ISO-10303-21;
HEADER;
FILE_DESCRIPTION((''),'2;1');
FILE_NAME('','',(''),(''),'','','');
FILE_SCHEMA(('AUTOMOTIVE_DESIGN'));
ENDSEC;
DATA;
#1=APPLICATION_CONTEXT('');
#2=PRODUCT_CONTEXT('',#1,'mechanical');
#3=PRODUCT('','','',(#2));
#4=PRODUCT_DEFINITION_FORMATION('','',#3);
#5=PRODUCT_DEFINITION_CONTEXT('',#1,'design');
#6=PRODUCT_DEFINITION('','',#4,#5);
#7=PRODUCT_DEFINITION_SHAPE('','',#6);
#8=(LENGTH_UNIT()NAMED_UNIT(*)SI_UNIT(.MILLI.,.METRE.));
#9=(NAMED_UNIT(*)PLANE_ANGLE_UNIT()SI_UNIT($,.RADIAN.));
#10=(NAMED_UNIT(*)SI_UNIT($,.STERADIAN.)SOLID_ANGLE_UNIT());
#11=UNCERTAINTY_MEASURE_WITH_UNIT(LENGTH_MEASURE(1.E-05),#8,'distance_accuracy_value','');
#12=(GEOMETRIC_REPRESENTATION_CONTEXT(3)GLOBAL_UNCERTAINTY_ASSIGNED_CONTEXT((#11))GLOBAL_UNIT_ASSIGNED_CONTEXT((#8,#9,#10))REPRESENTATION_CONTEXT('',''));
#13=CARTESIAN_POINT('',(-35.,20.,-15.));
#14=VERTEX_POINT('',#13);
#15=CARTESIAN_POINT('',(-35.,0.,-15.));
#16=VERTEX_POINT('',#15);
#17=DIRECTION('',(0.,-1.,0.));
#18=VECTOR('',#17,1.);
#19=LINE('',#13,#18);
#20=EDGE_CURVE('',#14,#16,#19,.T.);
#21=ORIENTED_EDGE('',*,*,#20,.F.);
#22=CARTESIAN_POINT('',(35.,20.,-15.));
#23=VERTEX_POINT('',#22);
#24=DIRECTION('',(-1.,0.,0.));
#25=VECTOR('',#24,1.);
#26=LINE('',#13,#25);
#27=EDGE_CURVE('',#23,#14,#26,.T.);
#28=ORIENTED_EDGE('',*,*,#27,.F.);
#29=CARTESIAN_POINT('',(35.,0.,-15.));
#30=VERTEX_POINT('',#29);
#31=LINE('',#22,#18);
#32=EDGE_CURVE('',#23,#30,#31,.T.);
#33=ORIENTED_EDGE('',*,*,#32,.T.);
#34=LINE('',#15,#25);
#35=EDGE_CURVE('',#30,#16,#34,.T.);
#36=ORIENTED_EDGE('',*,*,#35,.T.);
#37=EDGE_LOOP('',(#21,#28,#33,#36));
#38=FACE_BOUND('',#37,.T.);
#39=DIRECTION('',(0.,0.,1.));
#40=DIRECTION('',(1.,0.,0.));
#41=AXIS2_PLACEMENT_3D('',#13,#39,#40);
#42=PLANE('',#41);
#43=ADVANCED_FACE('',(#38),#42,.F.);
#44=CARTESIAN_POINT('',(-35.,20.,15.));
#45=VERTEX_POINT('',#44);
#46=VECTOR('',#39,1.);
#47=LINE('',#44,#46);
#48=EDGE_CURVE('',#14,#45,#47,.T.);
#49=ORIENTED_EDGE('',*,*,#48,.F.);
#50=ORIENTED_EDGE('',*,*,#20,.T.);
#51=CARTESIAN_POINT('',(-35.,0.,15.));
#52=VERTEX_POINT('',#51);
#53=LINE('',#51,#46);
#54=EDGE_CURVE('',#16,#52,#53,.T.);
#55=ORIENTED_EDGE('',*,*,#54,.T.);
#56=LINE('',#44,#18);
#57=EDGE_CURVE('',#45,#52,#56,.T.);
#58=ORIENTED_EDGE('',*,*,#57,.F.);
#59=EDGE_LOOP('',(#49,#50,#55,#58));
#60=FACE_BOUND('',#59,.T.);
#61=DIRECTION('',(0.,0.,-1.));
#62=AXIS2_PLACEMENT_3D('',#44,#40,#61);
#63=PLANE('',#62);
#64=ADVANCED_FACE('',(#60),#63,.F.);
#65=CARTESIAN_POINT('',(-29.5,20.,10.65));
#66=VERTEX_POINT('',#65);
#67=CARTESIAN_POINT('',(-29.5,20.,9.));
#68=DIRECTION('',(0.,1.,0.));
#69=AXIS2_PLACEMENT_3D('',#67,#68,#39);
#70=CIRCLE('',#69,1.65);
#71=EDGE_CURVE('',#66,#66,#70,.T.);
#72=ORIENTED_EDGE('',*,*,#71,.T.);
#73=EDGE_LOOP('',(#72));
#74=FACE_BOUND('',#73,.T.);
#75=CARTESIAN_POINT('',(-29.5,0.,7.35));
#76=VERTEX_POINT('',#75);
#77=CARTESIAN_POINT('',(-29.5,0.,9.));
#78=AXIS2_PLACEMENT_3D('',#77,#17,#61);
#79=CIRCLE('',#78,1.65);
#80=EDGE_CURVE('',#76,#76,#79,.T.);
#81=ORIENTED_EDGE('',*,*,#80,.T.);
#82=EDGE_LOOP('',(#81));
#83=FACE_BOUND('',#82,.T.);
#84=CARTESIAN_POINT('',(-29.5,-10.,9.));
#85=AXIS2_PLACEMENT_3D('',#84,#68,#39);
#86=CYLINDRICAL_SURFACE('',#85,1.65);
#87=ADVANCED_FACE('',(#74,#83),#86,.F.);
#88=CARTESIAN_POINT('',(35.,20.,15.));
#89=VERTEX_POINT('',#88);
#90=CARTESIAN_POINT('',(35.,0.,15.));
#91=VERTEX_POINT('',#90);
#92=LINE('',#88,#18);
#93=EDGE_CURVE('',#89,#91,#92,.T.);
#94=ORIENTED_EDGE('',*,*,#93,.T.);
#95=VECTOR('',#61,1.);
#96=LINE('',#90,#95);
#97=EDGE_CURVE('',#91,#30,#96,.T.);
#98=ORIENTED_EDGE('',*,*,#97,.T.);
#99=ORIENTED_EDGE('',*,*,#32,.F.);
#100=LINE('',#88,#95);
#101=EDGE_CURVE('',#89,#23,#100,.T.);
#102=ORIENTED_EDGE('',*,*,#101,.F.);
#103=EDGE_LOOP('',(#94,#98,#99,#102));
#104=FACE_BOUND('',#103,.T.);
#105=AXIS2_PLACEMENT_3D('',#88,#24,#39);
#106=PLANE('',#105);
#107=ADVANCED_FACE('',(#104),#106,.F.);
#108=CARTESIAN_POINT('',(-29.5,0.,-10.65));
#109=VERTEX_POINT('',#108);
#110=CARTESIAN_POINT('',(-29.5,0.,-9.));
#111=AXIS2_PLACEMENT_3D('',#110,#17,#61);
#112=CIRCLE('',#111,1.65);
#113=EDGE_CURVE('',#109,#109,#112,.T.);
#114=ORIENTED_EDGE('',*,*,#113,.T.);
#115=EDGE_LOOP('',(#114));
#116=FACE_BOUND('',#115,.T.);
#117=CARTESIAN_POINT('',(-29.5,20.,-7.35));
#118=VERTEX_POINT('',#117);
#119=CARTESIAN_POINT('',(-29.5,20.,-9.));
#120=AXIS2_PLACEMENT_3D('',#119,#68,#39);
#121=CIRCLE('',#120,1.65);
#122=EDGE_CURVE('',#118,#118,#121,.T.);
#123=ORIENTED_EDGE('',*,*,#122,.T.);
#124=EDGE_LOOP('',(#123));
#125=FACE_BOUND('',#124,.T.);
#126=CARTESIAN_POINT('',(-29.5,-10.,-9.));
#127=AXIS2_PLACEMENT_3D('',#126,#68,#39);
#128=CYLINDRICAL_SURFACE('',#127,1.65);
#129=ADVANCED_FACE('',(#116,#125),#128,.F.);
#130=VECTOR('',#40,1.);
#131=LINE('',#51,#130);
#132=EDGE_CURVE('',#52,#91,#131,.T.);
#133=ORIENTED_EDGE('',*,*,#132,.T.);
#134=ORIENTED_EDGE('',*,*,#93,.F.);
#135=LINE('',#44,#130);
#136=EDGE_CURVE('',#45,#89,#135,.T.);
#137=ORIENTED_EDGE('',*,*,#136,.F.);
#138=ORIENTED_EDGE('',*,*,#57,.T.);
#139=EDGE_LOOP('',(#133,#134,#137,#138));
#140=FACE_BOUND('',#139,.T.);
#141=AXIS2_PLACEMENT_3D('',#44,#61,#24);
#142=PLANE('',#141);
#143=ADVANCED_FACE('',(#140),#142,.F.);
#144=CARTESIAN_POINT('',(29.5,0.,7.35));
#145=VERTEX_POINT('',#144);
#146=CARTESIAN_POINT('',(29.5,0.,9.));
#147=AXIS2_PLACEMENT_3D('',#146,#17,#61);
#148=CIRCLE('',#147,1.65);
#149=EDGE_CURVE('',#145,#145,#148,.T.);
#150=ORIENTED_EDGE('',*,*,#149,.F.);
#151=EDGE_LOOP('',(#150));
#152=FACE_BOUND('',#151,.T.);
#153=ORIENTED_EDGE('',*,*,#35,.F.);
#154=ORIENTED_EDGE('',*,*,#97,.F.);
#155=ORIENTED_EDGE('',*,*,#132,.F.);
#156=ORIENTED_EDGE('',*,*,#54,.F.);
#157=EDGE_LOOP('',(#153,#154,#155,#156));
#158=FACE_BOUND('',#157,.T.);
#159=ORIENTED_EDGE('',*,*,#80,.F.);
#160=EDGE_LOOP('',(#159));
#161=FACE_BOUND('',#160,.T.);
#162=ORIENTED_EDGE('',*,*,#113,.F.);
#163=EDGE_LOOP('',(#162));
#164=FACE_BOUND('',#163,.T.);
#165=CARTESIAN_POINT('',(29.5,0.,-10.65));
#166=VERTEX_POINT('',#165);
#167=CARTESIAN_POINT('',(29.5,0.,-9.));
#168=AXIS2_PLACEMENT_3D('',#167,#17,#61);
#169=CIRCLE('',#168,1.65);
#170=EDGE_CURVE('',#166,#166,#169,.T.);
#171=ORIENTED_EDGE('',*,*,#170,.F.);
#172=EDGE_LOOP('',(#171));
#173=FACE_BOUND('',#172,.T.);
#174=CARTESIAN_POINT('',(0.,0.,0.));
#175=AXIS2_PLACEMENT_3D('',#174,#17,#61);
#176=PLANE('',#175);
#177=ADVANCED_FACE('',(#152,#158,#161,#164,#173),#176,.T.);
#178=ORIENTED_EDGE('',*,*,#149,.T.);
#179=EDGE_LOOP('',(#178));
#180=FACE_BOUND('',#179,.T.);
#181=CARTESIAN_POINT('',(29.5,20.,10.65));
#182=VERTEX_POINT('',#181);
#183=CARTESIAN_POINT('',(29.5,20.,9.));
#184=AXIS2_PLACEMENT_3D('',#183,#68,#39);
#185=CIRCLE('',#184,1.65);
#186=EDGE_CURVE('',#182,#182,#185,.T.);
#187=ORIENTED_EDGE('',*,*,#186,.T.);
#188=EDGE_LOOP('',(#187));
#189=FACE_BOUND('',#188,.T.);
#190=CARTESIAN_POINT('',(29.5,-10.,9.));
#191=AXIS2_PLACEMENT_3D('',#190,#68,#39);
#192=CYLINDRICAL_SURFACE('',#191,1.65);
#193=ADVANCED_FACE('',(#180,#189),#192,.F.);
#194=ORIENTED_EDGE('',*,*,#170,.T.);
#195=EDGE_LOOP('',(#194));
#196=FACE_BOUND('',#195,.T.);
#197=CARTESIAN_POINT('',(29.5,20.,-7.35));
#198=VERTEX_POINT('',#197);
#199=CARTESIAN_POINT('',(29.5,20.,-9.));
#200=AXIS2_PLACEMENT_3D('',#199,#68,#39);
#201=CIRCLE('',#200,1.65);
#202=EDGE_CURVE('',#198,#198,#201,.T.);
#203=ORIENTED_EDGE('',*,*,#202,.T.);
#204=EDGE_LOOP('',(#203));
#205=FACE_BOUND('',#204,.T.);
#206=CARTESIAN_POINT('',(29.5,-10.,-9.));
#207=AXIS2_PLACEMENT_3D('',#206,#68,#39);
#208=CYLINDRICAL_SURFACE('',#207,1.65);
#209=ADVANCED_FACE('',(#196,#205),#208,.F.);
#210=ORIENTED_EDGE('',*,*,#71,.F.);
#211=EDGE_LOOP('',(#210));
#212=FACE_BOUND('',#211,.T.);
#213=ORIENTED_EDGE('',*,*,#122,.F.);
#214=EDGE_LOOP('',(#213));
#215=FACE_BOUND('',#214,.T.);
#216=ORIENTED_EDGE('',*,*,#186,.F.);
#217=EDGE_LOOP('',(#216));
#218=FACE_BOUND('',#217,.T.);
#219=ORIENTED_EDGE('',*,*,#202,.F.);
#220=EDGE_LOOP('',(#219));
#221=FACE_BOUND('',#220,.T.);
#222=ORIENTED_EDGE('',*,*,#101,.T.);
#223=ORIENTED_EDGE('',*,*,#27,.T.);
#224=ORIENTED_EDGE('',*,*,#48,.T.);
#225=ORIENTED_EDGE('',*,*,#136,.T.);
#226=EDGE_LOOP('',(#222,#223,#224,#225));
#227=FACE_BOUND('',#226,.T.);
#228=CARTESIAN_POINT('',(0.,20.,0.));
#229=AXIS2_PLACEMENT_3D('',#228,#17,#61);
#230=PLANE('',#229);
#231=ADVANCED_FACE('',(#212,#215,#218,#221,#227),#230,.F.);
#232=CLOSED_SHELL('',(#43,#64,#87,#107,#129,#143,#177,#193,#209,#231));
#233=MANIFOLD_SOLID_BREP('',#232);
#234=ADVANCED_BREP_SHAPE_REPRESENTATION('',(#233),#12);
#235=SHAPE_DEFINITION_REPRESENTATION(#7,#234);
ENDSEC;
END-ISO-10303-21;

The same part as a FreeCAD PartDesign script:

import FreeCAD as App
import Part
import Sketcher

V = App.Vector
Q = App.Units.Quantity

doc = App.newDocument("Part")
body = doc.addObject("PartDesign::Body", "Body")

sketch1 = body.newObject("Sketcher::SketchObject", "Sketch")
sketch1.AttachmentSupport = (doc.getObject("XZ_Plane"), [""])
sketch1.MapMode = "FlatFace"
sketch1.addGeometry([
    Part.LineSegment(V(-35, -15, 0), V(-35, 15, 0)),
    Part.LineSegment(V(-35, 15, 0), V(35, 15, 0)),
    Part.LineSegment(V(35, 15, 0), V(35, -15, 0)),
    Part.LineSegment(V(35, -15, 0), V(-35, -15, 0)),
], False)
sketch1.addConstraint([
    Sketcher.Constraint("Coincident", 0, 2, 1, 1),
    Sketcher.Constraint("Coincident", 1, 2, 2, 1),
    Sketcher.Constraint("Coincident", 2, 2, 3, 1),
    Sketcher.Constraint("Coincident", 3, 2, 0, 1),
    Sketcher.Constraint("Vertical", 0),
    Sketcher.Constraint("Horizontal", 1),
    Sketcher.Constraint("Vertical", 2),
    Sketcher.Constraint("Horizontal", 3),
    Sketcher.Constraint("Symmetric", 0, 2, 2, 2, -1, 1),
    Sketcher.Constraint("DistanceX", 1, 1, 1, 2, Q("70 mm")),
    Sketcher.Constraint("DistanceY", 0, 1, 0, 2, Q("30 mm")),
])
pad1 = body.newObject("PartDesign::Pad", "Pad")
pad1.Profile = sketch1
pad1.Length = 20
pad1.Reversed = True

sketch2 = body.newObject("Sketcher::SketchObject", "Sketch001")
sketch2.AttachmentSupport = (doc.getObject("XZ_Plane"), [""])
sketch2.MapMode = "FlatFace"
sketch2.AttachmentOffset = App.Placement(V(0, 0, -20), App.Rotation())
sketch2.addGeometry([
    Part.Circle(V(-29.5, -9, 0), V(0, 0, 1), 1.65),
    Part.Circle(V(29.5, -9, 0), V(0, 0, 1), 1.65),
    Part.Circle(V(29.5, 9, 0), V(0, 0, 1), 1.65),
    Part.Circle(V(-29.5, 9, 0), V(0, 0, 1), 1.65),
], False)
sketch2.addConstraint([
    Sketcher.Constraint("Equal", 0, 1),
    Sketcher.Constraint("Equal", 1, 2),
    Sketcher.Constraint("Equal", 2, 3),
    Sketcher.Constraint("Symmetric", 0, 3, 2, 3, -1, 1),
    Sketcher.Constraint("Symmetric", 1, 3, 3, 3, -1, 1),
    Sketcher.Constraint("Symmetric", 0, 3, 1, 3, -2),
    Sketcher.Constraint("Diameter", 0, Q("3.3 mm")),
    Sketcher.Constraint("DistanceY", 0, 3, -1, 1, Q("9 mm")),
    Sketcher.Constraint("DistanceX", 0, 3, 1, 3, Q("59 mm")),
])
pocket1 = body.newObject("PartDesign::Pocket", "Pocket")
pocket1.Profile = sketch2
pocket1.Length = 30
pocket1.Reversed = True

doc.recompute()
